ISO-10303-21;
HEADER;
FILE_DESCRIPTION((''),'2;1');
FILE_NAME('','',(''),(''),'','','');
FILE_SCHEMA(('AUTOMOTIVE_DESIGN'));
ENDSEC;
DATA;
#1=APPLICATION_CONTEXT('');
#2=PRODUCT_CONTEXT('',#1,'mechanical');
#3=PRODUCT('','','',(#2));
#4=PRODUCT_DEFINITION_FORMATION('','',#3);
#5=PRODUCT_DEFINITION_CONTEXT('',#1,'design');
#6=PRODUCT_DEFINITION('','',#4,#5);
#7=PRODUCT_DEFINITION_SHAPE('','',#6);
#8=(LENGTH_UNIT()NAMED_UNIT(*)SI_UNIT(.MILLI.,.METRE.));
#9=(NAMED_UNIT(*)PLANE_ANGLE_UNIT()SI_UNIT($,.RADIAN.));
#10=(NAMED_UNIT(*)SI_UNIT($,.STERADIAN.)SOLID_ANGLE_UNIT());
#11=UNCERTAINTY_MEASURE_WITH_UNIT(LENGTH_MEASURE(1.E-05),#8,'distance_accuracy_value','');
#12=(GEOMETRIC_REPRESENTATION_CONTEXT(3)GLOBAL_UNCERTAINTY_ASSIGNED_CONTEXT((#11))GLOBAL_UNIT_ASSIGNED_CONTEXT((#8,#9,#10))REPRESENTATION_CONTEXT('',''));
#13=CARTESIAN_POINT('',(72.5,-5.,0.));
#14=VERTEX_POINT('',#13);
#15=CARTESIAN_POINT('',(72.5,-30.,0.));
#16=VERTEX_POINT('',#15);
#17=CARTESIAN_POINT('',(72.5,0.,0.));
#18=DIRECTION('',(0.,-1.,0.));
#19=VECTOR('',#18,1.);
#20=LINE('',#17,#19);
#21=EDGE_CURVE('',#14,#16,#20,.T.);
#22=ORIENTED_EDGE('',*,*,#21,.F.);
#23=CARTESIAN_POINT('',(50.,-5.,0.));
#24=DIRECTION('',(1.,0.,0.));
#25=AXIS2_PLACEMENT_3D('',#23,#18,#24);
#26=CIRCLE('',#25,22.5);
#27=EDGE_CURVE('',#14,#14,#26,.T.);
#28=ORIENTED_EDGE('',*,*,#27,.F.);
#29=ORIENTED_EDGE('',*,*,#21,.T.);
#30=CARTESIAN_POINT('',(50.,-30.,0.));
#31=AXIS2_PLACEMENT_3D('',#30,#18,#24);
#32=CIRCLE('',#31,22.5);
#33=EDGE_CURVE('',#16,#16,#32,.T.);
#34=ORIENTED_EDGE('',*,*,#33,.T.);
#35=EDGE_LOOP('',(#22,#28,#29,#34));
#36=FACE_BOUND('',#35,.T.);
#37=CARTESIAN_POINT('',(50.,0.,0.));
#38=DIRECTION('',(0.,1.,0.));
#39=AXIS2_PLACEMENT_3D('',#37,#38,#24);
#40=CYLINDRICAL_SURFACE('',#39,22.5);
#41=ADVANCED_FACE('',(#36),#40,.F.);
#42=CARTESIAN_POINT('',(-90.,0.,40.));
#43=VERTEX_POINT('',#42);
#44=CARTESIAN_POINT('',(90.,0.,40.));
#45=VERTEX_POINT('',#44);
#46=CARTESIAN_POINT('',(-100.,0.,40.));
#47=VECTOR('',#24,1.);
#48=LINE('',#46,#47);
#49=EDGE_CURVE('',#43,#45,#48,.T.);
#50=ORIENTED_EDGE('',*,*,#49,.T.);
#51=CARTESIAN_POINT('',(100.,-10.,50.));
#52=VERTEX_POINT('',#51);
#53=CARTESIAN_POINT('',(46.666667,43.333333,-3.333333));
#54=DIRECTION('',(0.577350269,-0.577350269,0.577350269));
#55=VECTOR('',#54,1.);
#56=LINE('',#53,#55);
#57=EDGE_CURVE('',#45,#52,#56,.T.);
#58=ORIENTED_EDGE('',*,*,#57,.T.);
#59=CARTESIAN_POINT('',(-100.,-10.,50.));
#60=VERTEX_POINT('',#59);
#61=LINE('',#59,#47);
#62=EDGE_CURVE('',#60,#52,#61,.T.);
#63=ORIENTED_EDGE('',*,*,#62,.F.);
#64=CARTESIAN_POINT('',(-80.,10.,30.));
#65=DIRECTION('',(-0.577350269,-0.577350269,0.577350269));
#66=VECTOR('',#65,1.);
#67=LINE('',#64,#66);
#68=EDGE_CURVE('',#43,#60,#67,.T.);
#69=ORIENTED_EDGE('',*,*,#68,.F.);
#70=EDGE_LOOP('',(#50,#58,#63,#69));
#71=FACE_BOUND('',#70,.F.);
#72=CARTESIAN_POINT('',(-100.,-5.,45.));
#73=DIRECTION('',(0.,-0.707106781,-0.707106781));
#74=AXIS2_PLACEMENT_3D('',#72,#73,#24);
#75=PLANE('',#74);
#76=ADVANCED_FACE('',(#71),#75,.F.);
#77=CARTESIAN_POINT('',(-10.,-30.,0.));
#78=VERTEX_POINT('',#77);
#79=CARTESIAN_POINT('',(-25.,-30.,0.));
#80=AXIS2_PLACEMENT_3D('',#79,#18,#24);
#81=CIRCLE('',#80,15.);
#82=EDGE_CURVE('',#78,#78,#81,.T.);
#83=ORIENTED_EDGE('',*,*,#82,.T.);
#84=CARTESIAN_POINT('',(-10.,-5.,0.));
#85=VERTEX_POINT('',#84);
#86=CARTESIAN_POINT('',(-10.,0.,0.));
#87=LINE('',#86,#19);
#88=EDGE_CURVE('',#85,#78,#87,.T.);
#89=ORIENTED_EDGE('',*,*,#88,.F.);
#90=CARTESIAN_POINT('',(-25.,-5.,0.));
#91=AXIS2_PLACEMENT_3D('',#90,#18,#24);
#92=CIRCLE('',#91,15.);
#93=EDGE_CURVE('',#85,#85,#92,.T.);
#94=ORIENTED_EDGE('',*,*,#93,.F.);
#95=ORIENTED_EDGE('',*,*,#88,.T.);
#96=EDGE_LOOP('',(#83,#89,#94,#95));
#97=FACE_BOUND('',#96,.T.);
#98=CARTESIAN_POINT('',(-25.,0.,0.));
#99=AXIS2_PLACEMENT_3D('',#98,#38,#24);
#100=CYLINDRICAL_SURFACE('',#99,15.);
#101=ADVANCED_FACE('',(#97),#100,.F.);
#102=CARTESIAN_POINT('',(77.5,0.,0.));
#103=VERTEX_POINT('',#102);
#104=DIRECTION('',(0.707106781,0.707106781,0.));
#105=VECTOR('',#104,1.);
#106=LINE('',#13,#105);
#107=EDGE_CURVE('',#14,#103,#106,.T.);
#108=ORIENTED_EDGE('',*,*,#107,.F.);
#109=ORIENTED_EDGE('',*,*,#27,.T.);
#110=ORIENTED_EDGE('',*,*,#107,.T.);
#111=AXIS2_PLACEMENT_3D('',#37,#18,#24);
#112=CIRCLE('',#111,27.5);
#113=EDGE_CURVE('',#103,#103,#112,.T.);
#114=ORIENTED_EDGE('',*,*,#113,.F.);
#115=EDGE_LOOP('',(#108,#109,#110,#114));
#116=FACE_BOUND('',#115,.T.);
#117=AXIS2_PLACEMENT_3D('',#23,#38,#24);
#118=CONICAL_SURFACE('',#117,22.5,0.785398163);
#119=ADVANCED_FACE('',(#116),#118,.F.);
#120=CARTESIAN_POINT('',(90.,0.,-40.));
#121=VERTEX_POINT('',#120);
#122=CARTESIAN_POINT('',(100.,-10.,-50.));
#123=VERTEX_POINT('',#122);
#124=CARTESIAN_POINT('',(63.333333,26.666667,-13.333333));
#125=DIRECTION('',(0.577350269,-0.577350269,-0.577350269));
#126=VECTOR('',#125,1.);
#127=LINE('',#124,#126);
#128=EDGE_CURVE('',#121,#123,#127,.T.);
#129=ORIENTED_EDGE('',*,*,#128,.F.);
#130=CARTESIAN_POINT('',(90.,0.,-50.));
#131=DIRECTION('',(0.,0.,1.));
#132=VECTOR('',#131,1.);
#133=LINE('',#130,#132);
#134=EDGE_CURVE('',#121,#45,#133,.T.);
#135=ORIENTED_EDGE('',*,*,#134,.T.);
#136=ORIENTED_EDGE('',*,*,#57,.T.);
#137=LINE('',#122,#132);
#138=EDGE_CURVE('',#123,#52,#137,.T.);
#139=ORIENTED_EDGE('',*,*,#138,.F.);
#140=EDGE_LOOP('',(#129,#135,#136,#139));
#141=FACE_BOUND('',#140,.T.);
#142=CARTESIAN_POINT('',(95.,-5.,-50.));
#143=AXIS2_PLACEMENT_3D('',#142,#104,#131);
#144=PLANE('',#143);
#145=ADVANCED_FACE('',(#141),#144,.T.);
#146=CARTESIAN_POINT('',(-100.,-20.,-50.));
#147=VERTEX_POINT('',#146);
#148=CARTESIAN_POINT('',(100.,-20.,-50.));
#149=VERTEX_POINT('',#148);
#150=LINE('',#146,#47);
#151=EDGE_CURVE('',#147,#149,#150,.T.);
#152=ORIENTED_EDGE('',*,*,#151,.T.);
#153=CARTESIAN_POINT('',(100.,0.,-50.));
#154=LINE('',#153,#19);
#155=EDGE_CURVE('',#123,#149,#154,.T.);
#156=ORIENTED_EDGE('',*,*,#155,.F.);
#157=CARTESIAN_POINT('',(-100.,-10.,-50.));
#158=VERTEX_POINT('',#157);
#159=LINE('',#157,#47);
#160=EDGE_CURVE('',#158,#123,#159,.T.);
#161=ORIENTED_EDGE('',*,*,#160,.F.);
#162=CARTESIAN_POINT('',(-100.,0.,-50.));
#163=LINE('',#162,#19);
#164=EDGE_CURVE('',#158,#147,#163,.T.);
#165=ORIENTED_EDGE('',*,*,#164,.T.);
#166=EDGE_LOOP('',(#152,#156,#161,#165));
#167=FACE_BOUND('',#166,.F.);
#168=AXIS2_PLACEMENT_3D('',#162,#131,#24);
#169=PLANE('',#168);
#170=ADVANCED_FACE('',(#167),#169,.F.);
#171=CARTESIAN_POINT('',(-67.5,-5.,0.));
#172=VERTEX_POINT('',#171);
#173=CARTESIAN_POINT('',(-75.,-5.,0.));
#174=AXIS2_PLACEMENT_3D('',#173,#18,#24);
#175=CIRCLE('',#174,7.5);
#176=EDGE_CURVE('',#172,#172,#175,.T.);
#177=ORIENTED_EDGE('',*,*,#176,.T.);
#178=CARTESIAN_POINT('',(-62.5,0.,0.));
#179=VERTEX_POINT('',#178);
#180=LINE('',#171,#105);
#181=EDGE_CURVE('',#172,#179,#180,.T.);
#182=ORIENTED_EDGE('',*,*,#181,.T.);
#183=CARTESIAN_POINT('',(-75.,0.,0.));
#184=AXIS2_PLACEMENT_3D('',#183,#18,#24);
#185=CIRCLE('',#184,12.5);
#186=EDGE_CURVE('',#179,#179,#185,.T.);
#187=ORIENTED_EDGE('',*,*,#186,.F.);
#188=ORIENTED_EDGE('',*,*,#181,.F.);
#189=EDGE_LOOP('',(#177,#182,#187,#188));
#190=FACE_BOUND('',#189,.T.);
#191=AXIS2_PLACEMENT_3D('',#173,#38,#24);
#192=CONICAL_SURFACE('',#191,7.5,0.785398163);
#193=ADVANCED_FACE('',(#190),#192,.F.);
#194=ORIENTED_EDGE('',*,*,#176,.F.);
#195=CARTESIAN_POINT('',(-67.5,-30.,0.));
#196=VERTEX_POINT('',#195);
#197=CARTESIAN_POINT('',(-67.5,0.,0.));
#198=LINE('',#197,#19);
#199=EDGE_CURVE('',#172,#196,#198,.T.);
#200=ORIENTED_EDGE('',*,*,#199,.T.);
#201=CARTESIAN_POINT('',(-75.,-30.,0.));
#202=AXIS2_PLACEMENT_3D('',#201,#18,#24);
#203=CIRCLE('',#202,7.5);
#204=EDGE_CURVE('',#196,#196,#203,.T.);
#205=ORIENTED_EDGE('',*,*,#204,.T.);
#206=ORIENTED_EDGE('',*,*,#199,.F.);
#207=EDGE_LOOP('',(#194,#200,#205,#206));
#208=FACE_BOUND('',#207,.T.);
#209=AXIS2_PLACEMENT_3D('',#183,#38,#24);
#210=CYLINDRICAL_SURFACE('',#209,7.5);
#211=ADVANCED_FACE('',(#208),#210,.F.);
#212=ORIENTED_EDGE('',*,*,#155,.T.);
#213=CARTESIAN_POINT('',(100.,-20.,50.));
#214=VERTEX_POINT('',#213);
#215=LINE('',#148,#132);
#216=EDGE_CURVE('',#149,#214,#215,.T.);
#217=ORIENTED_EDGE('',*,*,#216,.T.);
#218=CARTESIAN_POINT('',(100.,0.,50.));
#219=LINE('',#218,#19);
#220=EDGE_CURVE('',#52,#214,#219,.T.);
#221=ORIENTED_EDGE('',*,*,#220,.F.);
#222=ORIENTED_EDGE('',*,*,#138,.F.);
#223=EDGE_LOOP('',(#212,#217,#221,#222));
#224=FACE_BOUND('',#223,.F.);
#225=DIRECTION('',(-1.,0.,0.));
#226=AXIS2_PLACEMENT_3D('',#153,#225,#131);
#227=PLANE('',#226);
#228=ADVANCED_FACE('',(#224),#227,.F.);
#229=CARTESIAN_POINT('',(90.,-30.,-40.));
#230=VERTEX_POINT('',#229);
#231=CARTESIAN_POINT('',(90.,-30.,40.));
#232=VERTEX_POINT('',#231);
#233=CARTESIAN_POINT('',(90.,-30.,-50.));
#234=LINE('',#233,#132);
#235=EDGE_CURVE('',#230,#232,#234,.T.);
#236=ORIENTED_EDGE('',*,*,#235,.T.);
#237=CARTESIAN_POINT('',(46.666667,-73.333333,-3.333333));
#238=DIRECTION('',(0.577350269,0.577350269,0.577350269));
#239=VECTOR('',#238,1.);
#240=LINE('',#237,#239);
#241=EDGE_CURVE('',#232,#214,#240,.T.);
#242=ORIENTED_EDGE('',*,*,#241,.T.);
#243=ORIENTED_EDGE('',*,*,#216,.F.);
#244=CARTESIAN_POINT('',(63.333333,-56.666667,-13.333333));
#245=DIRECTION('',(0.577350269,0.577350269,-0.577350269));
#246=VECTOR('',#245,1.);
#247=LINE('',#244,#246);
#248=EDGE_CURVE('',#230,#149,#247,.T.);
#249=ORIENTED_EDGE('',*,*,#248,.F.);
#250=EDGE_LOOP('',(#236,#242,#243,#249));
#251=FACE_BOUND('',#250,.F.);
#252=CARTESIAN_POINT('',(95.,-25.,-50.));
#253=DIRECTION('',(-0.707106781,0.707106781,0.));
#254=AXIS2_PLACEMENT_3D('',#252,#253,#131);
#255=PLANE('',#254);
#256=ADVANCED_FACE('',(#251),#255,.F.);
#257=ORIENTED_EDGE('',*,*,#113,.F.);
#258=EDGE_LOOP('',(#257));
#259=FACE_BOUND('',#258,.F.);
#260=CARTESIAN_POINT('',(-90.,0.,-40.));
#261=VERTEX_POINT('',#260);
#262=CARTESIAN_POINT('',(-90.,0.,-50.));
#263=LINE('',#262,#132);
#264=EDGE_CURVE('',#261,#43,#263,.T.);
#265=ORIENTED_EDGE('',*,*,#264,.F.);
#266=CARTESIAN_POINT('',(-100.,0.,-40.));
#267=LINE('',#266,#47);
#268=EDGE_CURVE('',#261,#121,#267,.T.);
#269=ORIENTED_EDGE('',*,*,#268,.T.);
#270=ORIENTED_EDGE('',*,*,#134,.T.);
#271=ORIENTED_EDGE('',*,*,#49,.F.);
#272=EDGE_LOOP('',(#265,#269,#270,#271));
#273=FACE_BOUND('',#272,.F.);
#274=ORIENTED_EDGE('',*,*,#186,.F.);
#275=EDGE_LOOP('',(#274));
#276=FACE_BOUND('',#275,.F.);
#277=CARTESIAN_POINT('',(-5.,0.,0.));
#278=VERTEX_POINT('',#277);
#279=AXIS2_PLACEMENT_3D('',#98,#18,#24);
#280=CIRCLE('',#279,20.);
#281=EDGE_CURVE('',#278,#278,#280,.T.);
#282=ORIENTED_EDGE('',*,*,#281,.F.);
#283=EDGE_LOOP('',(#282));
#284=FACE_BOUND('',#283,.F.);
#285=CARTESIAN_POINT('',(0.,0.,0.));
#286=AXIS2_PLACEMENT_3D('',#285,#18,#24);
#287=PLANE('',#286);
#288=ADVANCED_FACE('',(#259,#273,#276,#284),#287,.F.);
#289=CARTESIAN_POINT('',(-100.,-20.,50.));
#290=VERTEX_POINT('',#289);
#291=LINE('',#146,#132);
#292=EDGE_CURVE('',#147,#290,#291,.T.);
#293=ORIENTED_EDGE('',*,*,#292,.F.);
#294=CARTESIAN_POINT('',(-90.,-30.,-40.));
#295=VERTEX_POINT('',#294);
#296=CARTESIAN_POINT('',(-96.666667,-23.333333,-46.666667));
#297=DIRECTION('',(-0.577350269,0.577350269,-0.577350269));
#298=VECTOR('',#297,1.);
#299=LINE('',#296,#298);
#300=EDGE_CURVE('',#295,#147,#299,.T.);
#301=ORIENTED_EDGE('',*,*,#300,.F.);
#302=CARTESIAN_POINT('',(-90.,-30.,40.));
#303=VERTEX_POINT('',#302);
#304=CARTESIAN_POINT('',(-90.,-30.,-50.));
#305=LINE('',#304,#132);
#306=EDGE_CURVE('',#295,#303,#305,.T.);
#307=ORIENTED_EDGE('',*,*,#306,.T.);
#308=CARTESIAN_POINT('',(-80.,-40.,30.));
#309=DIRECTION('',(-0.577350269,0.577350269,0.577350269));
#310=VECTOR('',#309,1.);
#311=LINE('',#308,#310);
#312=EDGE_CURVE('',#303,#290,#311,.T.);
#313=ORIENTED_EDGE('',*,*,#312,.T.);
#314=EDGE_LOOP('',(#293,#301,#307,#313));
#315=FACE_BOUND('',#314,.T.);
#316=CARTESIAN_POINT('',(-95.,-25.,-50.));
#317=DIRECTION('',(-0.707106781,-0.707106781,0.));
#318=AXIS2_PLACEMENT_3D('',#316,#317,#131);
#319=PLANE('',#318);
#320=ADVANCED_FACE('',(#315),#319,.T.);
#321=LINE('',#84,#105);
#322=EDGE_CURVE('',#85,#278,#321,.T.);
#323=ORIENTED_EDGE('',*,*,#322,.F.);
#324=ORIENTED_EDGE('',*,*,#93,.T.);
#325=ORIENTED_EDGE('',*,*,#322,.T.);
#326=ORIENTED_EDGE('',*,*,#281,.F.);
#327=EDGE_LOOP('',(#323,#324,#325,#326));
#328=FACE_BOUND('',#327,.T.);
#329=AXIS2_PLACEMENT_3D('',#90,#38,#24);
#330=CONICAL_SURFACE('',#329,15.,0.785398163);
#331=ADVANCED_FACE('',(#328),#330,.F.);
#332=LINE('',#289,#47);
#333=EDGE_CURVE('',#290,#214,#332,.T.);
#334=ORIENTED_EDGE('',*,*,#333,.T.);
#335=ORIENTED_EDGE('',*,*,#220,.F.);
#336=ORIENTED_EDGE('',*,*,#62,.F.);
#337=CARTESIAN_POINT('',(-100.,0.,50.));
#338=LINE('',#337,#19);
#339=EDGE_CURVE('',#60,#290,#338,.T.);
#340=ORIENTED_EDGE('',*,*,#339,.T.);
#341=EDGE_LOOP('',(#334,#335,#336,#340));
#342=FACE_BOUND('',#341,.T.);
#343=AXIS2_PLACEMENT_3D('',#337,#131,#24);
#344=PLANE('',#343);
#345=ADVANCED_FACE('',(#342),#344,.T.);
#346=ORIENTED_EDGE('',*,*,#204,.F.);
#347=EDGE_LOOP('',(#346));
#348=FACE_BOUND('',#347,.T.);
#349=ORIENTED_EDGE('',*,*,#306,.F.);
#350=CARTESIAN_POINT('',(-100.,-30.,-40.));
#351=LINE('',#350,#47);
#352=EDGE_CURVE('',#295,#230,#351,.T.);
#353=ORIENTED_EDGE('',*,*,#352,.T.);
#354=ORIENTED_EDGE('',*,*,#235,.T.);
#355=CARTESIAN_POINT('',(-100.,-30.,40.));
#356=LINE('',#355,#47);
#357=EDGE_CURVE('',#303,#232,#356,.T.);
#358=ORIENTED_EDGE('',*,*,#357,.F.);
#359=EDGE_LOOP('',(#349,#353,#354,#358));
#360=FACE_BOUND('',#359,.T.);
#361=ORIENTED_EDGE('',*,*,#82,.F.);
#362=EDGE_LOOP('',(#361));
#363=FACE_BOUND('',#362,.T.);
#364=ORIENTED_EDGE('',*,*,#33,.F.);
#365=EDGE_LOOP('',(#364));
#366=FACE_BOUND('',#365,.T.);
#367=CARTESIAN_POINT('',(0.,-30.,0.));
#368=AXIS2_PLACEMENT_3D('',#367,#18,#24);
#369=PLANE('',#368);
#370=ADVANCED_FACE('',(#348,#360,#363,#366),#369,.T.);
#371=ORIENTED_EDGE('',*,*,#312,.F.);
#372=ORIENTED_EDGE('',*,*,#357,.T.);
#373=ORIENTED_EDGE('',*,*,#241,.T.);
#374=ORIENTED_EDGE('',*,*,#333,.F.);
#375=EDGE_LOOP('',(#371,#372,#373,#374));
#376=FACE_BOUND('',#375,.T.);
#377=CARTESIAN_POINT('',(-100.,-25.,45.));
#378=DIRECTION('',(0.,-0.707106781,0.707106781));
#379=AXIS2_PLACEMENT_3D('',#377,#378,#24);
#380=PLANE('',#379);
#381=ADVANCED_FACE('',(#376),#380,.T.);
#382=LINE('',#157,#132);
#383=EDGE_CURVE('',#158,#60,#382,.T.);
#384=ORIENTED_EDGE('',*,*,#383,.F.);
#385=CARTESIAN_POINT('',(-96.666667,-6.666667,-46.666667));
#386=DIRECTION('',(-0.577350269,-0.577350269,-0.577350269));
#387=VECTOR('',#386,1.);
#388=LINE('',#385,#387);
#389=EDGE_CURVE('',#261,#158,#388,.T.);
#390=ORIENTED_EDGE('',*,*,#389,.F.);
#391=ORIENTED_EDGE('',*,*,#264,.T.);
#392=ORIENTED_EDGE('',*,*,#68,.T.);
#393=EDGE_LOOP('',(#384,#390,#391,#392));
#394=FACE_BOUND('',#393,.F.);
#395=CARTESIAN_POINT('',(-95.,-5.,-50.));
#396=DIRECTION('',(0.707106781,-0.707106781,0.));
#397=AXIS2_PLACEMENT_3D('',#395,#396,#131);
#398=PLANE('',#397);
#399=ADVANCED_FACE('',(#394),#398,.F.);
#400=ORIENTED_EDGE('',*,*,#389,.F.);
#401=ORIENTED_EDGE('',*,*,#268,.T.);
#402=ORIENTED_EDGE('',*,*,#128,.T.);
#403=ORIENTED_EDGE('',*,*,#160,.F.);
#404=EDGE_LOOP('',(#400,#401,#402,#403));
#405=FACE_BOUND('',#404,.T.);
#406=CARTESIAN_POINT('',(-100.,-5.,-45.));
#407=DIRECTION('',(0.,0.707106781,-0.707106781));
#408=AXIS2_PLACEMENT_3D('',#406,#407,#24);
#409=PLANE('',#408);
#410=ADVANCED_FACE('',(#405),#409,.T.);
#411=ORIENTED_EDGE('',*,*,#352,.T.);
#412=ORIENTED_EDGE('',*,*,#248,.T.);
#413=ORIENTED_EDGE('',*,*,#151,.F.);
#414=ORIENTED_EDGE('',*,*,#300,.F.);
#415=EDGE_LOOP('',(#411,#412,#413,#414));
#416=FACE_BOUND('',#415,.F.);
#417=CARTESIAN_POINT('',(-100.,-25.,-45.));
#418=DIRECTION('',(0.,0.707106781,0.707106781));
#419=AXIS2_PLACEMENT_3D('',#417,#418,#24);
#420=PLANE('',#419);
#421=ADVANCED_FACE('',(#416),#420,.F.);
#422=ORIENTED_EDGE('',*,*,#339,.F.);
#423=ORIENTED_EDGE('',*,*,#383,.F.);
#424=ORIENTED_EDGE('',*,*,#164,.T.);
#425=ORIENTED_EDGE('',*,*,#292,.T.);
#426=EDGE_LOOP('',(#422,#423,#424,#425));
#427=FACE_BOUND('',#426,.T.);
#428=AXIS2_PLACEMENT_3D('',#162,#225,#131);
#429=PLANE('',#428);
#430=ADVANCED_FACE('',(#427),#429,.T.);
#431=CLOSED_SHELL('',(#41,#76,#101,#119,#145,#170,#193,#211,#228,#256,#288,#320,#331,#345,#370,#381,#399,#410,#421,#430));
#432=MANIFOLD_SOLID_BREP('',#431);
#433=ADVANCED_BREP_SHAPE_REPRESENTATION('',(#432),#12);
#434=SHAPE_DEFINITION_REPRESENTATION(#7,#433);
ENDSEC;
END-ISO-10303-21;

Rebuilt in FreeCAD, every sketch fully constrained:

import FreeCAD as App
import Part
import Sketcher

V = App.Vector


def edges_at(feature, points):
    """Names of the edges that pass closest to the given points."""
    edges = feature.Shape.Edges
    near = lambda p: min(range(len(edges)), key=lambda i: edges[i].distToShape(Part.Vertex(*p))[0])
    return sorted({f"Edge{near(p) + 1}" for p in points})

doc = App.newDocument("Part")
body = doc.addObject("PartDesign::Body", "Body")

sketch1 = doc.addObject("Sketcher::SketchObject", "Sketch")
body.addObject(sketch1)
sketch1.AttachmentSupport = (doc.XZ_Plane, [""])
sketch1.MapMode = "FlatFace"
sketch1.addGeometry(Part.LineSegment(V(-100, 50, 0), V(-100, -50, 0)), False)
sketch1.addGeometry(Part.LineSegment(V(-100, -50, 0), V(100, -50, 0)), False)
sketch1.addGeometry(Part.LineSegment(V(100, -50, 0), V(100, 50, 0)), False)
sketch1.addGeometry(Part.LineSegment(V(100, 50, 0), V(-100, 50, 0)), False)
sketch1.addGeometry(Part.Circle(V(-75, 0, 0), V(0, 0, 1), 8), False)
sketch1.addGeometry(Part.Circle(V(-25, 0, 0), V(0, 0, 1), 15), False)
sketch1.addGeometry(Part.Circle(V(50, 0, 0), V(0, 0, 1), 22), False)
sketch1.addConstraint(Sketcher.Constraint("Coincident", 0, 2, 1, 1))
sketch1.addConstraint(Sketcher.Constraint("Coincident", 1, 2, 2, 1))
sketch1.addConstraint(Sketcher.Constraint("Coincident", 2, 2, 3, 1))
sketch1.addConstraint(Sketcher.Constraint("Coincident", 3, 2, 0, 1))
sketch1.addConstraint(Sketcher.Constraint("Vertical", 0))
sketch1.addConstraint(Sketcher.Constraint("Horizontal", 1))
sketch1.addConstraint(Sketcher.Constraint("Vertical", 2))
sketch1.addConstraint(Sketcher.Constraint("Horizontal", 3))
sketch1.addConstraint(Sketcher.Constraint("Symmetric", 0, 2, 2, 2, -1, 1))
sketch1.addConstraint(Sketcher.Constraint("PointOnObject", 4, 3, -1))
sketch1.addConstraint(Sketcher.Constraint("PointOnObject", 5, 3, -1))
sketch1.addConstraint(Sketcher.Constraint("PointOnObject", 6, 3, -1))
sketch1.addConstraint(Sketcher.Constraint("Diameter", 4, 15.0))
sketch1.addConstraint(Sketcher.Constraint("Diameter", 5, 30.0))
sketch1.addConstraint(Sketcher.Constraint("Diameter", 6, 45.0))
sketch1.addConstraint(Sketcher.Constraint("DistanceX", 1, 1, 1, 2, 200.0))
sketch1.addConstraint(Sketcher.Constraint("DistanceY", 0, 2, 0, 1, 100.0))
sketch1.addConstraint(Sketcher.Constraint("DistanceX", 4, 3, -1, 1, 75.0))
sketch1.addConstraint(Sketcher.Constraint("DistanceX", 5, 3, -1, 1, 25.0))
sketch1.addConstraint(Sketcher.Constraint("DistanceX", -1, 1, 6, 3, 50.0))
pad1 = doc.addObject("PartDesign::Pad", "Pad")
body.addObject(pad1)
pad1.Profile = sketch1
pad1.Length = 30
doc.recompute()

chamfer = doc.addObject("PartDesign::Chamfer", "Chamfer")
body.addObject(chamfer)
chamfer.Base = (pad1, edges_at(pad1, [(-82.5, 0, 0), (-40, 0, 0), (27.5, 0, 0)]))
chamfer.ChamferType = "Two distances"
chamfer.Size = 5
chamfer.Size2 = 5
doc.recompute()

chamfer2 = doc.addObject("PartDesign::Chamfer", "Chamfer001")
body.addObject(chamfer2)
chamfer2.Base = (chamfer, edges_at(chamfer, [
    (0, -30, -50),
    (-100, -30, 0),
    (0, -30, 50),
    (100, -30, 0),
    (100, 0, 0),
    (0, 0, 50),
    (-100, 0, 0),
    (0, 0, -50),
]))
chamfer2.ChamferType = "Two distances"
chamfer2.Size = 10
chamfer2.Size2 = 10

doc.recompute()
